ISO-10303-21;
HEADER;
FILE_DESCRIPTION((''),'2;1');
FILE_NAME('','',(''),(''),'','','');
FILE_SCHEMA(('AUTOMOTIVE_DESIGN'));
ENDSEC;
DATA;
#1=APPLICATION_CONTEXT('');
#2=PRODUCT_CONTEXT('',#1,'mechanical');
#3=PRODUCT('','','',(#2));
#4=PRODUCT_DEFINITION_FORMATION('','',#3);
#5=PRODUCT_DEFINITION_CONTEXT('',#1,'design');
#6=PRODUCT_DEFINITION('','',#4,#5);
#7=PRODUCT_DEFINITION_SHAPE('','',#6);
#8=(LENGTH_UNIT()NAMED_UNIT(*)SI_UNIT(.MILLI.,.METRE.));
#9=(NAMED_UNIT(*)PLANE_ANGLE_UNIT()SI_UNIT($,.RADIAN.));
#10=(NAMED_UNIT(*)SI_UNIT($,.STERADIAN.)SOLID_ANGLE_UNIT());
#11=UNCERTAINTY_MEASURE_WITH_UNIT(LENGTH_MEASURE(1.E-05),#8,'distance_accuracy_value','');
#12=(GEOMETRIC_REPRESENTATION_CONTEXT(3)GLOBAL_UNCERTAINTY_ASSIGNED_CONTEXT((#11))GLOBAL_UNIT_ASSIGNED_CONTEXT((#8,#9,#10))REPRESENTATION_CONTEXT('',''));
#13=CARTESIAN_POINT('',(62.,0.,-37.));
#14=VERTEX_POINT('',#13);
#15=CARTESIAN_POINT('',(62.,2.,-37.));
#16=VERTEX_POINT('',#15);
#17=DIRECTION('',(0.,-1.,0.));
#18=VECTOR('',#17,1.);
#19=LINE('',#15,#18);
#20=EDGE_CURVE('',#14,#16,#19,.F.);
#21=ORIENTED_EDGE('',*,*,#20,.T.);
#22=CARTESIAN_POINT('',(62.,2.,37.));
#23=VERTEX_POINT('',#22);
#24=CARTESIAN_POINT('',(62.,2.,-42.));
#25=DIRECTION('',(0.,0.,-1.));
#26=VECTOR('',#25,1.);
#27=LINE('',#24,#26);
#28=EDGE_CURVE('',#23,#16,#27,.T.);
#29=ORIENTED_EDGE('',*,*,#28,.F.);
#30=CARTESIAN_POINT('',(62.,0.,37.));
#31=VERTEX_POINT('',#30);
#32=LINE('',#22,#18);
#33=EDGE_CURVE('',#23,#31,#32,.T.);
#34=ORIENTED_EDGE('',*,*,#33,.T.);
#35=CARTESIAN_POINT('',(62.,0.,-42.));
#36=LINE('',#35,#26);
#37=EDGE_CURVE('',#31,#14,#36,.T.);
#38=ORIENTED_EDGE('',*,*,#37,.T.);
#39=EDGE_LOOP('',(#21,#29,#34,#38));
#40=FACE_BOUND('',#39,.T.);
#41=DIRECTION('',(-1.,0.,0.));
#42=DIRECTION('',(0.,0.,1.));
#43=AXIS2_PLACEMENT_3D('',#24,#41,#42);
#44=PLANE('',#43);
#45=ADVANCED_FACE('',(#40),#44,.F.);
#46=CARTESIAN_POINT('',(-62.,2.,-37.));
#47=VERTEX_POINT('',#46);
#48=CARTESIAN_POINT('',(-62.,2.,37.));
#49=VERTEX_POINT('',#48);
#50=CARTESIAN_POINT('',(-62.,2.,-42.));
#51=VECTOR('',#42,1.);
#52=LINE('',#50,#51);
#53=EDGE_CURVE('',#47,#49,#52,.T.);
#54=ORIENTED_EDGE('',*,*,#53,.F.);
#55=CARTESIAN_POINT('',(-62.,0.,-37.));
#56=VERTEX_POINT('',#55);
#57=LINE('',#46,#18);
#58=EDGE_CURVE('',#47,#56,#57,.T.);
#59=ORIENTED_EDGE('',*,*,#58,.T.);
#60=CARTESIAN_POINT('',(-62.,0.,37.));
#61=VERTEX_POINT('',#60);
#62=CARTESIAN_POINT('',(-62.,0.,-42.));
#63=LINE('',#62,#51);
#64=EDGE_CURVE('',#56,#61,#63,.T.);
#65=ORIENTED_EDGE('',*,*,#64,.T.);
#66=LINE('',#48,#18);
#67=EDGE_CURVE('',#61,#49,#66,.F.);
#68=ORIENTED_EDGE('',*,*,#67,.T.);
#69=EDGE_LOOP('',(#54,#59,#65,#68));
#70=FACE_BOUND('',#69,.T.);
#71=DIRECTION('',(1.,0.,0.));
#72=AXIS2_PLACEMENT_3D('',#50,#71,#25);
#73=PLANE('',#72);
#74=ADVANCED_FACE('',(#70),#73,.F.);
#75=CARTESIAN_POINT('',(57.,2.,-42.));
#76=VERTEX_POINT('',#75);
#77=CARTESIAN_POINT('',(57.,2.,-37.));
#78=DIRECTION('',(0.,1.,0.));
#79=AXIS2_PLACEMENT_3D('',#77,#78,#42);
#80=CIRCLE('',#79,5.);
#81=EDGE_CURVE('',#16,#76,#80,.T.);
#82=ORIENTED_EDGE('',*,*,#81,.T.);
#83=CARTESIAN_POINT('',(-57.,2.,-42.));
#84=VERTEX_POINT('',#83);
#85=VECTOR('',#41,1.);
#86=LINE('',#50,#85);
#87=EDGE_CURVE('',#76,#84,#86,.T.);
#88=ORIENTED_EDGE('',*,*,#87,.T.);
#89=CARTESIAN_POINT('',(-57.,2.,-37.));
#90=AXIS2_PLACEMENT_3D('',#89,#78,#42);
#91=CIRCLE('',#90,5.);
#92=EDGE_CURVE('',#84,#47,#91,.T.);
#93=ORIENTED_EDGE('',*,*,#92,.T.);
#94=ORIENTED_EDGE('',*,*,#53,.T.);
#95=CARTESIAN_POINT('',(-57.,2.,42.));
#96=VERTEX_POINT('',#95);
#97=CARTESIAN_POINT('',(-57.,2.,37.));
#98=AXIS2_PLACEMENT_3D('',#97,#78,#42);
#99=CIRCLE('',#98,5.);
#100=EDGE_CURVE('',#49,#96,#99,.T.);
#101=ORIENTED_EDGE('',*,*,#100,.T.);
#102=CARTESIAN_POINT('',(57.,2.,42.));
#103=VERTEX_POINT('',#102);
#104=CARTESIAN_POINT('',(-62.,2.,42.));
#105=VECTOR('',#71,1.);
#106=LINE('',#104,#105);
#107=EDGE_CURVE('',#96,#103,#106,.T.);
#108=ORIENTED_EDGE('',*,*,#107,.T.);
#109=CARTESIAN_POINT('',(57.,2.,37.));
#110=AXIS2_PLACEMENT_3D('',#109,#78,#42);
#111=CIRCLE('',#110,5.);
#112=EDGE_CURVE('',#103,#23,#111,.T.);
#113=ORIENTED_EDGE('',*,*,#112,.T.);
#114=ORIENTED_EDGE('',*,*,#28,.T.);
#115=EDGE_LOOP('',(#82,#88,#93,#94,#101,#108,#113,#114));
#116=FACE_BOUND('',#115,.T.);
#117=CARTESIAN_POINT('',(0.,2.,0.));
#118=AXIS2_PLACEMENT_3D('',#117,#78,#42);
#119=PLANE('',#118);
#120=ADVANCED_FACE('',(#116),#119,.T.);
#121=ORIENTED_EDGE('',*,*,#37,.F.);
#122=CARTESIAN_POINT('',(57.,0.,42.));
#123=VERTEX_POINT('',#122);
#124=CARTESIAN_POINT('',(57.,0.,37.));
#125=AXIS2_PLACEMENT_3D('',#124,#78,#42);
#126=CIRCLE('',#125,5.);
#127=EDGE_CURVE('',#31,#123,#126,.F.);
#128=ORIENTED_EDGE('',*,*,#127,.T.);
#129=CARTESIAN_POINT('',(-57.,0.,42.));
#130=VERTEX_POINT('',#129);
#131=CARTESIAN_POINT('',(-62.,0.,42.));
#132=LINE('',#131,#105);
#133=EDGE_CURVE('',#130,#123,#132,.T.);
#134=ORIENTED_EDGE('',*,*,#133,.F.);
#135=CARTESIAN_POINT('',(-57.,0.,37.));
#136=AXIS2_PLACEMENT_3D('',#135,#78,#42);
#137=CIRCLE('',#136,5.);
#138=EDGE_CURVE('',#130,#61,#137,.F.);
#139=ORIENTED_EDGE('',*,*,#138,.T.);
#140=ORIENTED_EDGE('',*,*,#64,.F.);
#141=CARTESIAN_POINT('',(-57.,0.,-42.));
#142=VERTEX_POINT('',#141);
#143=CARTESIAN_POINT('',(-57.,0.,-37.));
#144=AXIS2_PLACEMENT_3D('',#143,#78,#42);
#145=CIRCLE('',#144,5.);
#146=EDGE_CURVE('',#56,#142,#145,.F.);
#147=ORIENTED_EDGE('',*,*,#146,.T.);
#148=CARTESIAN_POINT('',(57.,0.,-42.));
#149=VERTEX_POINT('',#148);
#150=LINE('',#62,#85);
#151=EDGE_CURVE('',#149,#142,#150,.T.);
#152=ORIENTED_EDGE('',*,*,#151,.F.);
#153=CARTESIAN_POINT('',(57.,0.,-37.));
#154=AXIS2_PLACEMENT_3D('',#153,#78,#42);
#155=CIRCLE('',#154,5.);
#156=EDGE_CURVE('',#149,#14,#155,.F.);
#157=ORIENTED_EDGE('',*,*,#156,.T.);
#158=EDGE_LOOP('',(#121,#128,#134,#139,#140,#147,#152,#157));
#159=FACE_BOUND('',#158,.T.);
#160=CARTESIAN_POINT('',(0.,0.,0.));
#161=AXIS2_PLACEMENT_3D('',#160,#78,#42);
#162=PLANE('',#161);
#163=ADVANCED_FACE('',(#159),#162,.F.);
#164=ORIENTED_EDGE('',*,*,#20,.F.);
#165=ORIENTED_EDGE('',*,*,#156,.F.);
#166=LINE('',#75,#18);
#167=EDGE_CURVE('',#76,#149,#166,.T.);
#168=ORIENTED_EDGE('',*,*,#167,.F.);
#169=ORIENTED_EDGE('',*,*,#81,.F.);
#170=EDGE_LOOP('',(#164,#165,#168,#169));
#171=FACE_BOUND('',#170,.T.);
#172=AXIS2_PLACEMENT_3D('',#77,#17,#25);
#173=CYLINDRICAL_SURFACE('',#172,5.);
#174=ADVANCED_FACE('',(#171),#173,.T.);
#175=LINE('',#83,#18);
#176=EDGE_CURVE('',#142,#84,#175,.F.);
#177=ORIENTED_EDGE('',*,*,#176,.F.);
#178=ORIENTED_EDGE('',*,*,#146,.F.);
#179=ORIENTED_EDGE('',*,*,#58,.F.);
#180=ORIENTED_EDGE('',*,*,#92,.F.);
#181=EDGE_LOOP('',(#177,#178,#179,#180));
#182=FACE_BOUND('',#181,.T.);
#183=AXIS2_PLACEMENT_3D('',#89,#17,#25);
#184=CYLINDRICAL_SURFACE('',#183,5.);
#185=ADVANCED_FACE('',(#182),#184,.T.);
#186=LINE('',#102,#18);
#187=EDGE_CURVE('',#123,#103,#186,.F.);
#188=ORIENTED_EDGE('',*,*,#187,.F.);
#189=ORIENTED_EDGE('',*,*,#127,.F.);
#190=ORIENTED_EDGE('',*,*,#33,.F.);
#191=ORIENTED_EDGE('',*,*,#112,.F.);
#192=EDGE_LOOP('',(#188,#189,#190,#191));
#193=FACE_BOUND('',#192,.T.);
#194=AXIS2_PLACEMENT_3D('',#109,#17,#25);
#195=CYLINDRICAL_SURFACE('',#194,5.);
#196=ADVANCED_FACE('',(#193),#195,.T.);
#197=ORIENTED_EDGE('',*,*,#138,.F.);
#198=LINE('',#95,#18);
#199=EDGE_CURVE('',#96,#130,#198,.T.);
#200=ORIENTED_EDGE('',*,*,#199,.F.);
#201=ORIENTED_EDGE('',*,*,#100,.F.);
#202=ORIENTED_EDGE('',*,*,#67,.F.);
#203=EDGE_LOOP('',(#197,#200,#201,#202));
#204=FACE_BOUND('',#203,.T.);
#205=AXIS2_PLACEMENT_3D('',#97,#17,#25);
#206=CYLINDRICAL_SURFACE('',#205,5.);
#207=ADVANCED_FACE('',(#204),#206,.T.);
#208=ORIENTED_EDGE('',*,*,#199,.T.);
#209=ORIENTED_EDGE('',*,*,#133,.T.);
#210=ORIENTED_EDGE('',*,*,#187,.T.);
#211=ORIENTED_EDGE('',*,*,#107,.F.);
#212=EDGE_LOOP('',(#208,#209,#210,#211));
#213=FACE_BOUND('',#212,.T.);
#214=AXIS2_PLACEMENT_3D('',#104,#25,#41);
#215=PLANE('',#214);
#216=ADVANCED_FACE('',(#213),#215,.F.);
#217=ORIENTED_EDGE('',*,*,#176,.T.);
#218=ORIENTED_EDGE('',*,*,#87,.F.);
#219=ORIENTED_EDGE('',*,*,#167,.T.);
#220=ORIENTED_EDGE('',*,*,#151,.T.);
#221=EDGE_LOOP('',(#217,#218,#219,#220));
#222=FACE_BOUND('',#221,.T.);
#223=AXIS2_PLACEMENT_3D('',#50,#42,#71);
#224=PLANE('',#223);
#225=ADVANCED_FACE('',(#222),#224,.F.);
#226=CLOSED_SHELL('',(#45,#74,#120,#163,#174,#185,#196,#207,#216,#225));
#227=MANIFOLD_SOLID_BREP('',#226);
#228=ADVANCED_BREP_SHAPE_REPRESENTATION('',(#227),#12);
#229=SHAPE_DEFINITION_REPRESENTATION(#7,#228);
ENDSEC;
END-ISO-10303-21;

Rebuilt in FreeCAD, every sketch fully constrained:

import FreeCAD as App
import Part
import Sketcher
from FreeCAD import Vector


def edges_at(feature, points):
    """Names of the edges that pass closest to the given points."""
    edges = feature.Shape.Edges
    near = lambda p: min(range(len(edges)), key=lambda i: edges[i].distToShape(Part.Vertex(*p))[0])
    return sorted({f"Edge{near(p) + 1}" for p in points})


def add_polygon(sketch, points):
    """Adds a closed chain of lines whose ends are joined by coincident constraints."""
    first, n = sketch.GeometryCount, len(points)
    for a, b in zip(points, points[1:] + points[:1]):
        sketch.addGeometry(Part.LineSegment(App.Vector(*a, 0), App.Vector(*b, 0)), False)
    for i in range(n):
        sketch.addConstraint(Sketcher.Constraint("Coincident", first + i, 2, first + (i + 1) % n, 1))

doc = App.newDocument("Part")
body = doc.addObject("PartDesign::Body", "Body")

# Sketch on XZ plane
sketch1 = doc.addObject("Sketcher::SketchObject", "Sketch")
body.addObject(sketch1)
sketch1.AttachmentSupport = (doc.XZ_Plane, [""])
sketch1.MapMode = "FlatFace"
add_polygon(sketch1, [(-62, -42), (-62, 42), (62, 42), (62, -42)])  # lines 0-3
sketch1.addConstraint(Sketcher.Constraint("Vertical", 0))
sketch1.addConstraint(Sketcher.Constraint("Horizontal", 1))
sketch1.addConstraint(Sketcher.Constraint("Vertical", 2))
sketch1.addConstraint(Sketcher.Constraint("Horizontal", 3))
sketch1.addConstraint(Sketcher.Constraint("Symmetric", 0, 2, 2, 2, -1, 1))
sketch1.addConstraint(Sketcher.Constraint("DistanceX", 1, 1, 1, 2, 124.0))
sketch1.addConstraint(Sketcher.Constraint("DistanceY", 0, 1, 0, 2, 84.0))
pad1 = doc.addObject("PartDesign::Pad", "Pad")
body.addObject(pad1)
pad1.Profile = sketch1
pad1.Length = 2
pad1.Reversed = True
doc.recompute()

fillet = doc.addObject("PartDesign::Fillet", "Fillet")
body.addObject(fillet)
fillet.Base = (pad1, edges_at(pad1, [(62, 1, 42)]))
fillet.Radius = 5
doc.recompute()

fillet2 = doc.addObject("PartDesign::Fillet", "Fillet001")
body.addObject(fillet2)
fillet2.Base = (fillet, edges_at(fillet, [(-62, 1, 42)]))
fillet2.Radius = 5
doc.recompute()

fillet3 = doc.addObject("PartDesign::Fillet", "Fillet002")
body.addObject(fillet3)
fillet3.Base = (fillet2, edges_at(fillet2, [(-62, 1, -42)]))
fillet3.Radius = 5
doc.recompute()

fillet4 = doc.addObject("PartDesign::Fillet", "Fillet003")
body.addObject(fillet4)
fillet4.Base = (fillet3, edges_at(fillet3, [(62, 1, -42)]))
fillet4.Radius = 5

doc.recompute()
